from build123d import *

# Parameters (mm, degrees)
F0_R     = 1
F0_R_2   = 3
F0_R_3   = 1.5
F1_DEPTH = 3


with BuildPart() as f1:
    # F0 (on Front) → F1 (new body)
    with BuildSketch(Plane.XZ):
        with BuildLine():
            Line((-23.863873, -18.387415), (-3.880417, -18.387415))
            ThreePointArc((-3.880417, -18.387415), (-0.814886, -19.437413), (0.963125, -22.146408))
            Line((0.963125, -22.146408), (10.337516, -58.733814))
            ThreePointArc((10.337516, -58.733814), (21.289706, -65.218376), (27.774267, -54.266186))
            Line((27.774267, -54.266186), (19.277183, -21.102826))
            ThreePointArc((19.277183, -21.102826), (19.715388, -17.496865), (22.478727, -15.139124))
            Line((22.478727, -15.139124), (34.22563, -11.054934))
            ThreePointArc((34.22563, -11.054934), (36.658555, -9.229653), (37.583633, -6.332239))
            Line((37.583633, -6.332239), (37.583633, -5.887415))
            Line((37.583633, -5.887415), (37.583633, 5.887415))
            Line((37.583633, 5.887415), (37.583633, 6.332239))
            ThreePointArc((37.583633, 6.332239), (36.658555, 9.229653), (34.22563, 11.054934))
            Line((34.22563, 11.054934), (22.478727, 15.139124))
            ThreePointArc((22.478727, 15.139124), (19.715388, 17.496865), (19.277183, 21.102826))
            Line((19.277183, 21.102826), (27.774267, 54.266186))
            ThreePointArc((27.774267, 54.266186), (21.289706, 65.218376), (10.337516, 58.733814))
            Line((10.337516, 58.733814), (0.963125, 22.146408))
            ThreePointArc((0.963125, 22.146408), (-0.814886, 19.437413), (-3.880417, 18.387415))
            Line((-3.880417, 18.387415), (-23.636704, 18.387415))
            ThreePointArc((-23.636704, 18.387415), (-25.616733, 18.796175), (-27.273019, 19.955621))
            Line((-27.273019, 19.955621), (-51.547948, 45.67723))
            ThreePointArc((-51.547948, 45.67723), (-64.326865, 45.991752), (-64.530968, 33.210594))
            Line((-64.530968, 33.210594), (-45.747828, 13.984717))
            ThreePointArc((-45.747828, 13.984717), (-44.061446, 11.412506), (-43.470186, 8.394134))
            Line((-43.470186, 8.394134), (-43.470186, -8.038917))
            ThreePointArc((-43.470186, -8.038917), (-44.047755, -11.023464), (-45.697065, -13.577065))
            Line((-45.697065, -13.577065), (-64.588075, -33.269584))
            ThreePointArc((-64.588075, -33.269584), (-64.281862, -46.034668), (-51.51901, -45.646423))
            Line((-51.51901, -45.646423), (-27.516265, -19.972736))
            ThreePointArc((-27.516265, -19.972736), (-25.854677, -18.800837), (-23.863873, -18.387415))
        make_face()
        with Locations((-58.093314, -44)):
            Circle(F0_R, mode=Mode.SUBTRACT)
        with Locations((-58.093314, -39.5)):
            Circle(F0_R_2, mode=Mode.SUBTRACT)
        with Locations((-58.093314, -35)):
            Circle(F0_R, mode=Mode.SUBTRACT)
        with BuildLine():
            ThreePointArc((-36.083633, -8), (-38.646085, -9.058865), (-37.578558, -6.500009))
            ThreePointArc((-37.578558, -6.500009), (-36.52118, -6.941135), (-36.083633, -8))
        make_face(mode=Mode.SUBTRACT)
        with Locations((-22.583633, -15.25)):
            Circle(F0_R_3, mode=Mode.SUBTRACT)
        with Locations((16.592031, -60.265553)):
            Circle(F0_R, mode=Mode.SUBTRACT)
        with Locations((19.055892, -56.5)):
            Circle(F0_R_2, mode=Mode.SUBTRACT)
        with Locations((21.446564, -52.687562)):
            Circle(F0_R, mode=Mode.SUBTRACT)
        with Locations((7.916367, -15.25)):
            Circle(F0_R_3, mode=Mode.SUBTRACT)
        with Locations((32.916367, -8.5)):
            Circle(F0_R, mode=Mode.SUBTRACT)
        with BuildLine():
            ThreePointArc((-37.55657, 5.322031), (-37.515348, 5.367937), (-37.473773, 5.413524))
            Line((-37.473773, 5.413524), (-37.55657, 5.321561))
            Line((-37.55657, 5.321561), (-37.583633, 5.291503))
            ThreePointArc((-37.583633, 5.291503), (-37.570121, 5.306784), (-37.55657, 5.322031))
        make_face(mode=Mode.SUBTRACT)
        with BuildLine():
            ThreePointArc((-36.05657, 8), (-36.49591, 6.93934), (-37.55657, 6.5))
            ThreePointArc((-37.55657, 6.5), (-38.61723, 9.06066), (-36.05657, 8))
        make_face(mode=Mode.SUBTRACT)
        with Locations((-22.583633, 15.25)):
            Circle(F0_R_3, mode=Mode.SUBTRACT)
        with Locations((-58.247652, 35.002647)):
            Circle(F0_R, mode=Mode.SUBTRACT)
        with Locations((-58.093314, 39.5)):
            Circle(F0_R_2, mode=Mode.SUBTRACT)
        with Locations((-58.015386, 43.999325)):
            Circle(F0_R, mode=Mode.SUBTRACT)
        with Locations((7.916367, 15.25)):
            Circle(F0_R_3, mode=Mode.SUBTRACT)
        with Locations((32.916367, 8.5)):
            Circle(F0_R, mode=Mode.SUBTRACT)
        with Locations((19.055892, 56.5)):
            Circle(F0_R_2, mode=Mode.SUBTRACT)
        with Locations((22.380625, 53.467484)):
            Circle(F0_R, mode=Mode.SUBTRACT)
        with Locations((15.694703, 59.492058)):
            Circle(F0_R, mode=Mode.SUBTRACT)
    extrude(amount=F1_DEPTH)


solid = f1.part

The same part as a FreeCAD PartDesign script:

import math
import FreeCAD as App
import Part
import Sketcher

doc = App.newDocument("Part")
body = doc.addObject("PartDesign::Body", "Body")

sketch1 = body.newObject("Sketcher::SketchObject", "Sketch")
sketch1.AttachmentSupport = (doc.getObject("XZ_Plane"), [""])
sketch1.MapMode = "FlatFace"
sketch1.addGeometry(Part.LineSegment(App.Vector(-23.863873, -18.387415, 0), App.Vector(-3.880417, -18.387415, 0)), False)
sketch1.addGeometry(Part.ArcOfCircle(Part.Circle(App.Vector(-3.880418, -23.387416, 0), App.Vector(0, 0, 1), 5.000001), math.radians(14.371113), math.radians(89.999989)), False)
sketch1.addGeometry(Part.LineSegment(App.Vector(0.963125, -22.146408, 0), App.Vector(10.337516, -58.733814, 0)), False)
sketch1.addGeometry(Part.ArcOfCircle(Part.Circle(App.Vector(19.055892, -56.500001, 0), App.Vector(0, 0, 1), 9), math.radians(-165.628889), math.radians(14.371119)), False)
sketch1.addGeometry(Part.LineSegment(App.Vector(27.774267, -54.266186, 0), App.Vector(19.277183, -21.102826, 0)), False)
sketch1.addGeometry(Part.ArcOfCircle(Part.Circle(App.Vector(24.120725, -19.861818, 0), App.Vector(0, 0, 1), 5), math.radians(109.171669), math.radians(194.371112)), False)
sketch1.addGeometry(Part.LineSegment(App.Vector(22.478727, -15.139124, 0), App.Vector(34.22563, -11.054934, 0)), False)
sketch1.addGeometry(Part.ArcOfCircle(Part.Circle(App.Vector(32.583631, -6.332238, 0), App.Vector(0, 0, 1), 5.000002), math.radians(-70.828331), math.radians(-0.000012)), False)
sketch1.addGeometry(Part.LineSegment(App.Vector(37.583633, -6.332239, 0), App.Vector(37.583633, 6.332239, 0)), False)
sketch1.addGeometry(Part.ArcOfCircle(Part.Circle(App.Vector(32.583631, 6.332238, 0), App.Vector(0, 0, 1), 5.000002), math.radians(0.000012), math.radians(70.828331)), False)
sketch1.addGeometry(Part.LineSegment(App.Vector(34.22563, 11.054934, 0), App.Vector(22.478727, 15.139124, 0)), False)
sketch1.addGeometry(Part.ArcOfCircle(Part.Circle(App.Vector(24.120725, 19.861818, 0), App.Vector(0, 0, 1), 5), math.radians(165.628888), math.radians(250.828331)), False)
sketch1.addGeometry(Part.LineSegment(App.Vector(19.277183, 21.102826, 0), App.Vector(27.774267, 54.266186, 0)), False)
sketch1.addGeometry(Part.ArcOfCircle(Part.Circle(App.Vector(19.055892, 56.500001, 0), App.Vector(0, 0, 1), 9), math.radians(-14.371119), math.radians(165.628889)), False)
sketch1.addGeometry(Part.LineSegment(App.Vector(10.337516, 58.733814, 0), App.Vector(0.963125, 22.146408, 0)), False)
sketch1.addGeometry(Part.ArcOfCircle(Part.Circle(App.Vector(-3.880418, 23.387416, 0), App.Vector(0, 0, 1), 5.000001), math.radians(-89.999989), math.radians(-14.371113)), False)
sketch1.addGeometry(Part.LineSegment(App.Vector(-3.880417, 18.387415, 0), App.Vector(-23.636704, 18.387415, 0)), False)
sketch1.addGeometry(Part.ArcOfCircle(Part.Circle(App.Vector(-23.636704, 23.387414, 0), App.Vector(0, 0, 1), 4.999999), math.radians(-136.657444), math.radians(-89.999998)), False)
sketch1.addGeometry(Part.LineSegment(App.Vector(-27.273019, 19.955621, 0), App.Vector(-51.547948, 45.67723, 0)), False)
sketch1.addGeometry(Part.ArcOfCircle(Part.Circle(App.Vector(-58.093315, 39.499999, 0), App.Vector(0, 0, 1), 9), math.radians(43.342574), math.radians(224.332635)), False)
sketch1.addGeometry(Part.LineSegment(App.Vector(-64.530968, 33.210594, 0), App.Vector(-45.747828, 13.984717, 0)), False)
sketch1.addGeometry(Part.ArcOfCircle(Part.Circle(App.Vector(-51.470187, 8.394133, 0), App.Vector(0, 0, 1), 8.000001), math.radians(0.000004), math.radians(44.332636)), False)
sketch1.addGeometry(Part.LineSegment(App.Vector(-43.470186, 8.394134, 0), App.Vector(-43.470186, -8.038917, 0)), False)
sketch1.addGeometry(Part.ArcOfCircle(Part.Circle(App.Vector(-51.470188, -8.038917, 0), App.Vector(0, 0, 1), 8.000002), math.radians(-43.809936), math.radians(0.000001)), False)
sketch1.addGeometry(Part.LineSegment(App.Vector(-45.697065, -13.577065, 0), App.Vector(-64.588075, -33.269584, 0)), False)
sketch1.addGeometry(Part.ArcOfCircle(Part.Circle(App.Vector(-58.093315, -39.5, 0), App.Vector(0, 0, 1), 9), math.radians(136.190051), math.radians(316.92651)), False)
sketch1.addGeometry(Part.LineSegment(App.Vector(-51.51901, -45.646423, 0), App.Vector(-27.516265, -19.972736, 0)), False)
sketch1.addGeometry(Part.ArcOfCircle(Part.Circle(App.Vector(-23.863872, -23.387417, 0), App.Vector(0, 0, 1), 5.000002), math.radians(90.000009), math.radians(136.926506)), False)
sketch1.addGeometry(Part.Circle(App.Vector(-58.093314, -44, 0), App.Vector(0, 0, 1), 1), False)
sketch1.addGeometry(Part.Circle(App.Vector(-58.093314, -39.5, 0), App.Vector(0, 0, 1), 3), False)
sketch1.addGeometry(Part.Circle(App.Vector(-58.093314, -35, 0), App.Vector(0, 0, 1), 1), False)
sketch1.addGeometry(Part.ArcOfCircle(Part.Circle(App.Vector(-37.583631, -7.999999, 0), App.Vector(0, 0, 1), 1.499998), math.radians(-0.000056), math.radians(89.806221)), False)
sketch1.addGeometry(Part.ArcOfCircle(Part.Circle(App.Vector(-37.583633, -8, 0), App.Vector(0, 0, 1), 1.5), math.radians(89.806157), math.radians(360.000008)), False)
sketch1.addGeometry(Part.Circle(App.Vector(-22.583633, -15.25, 0), App.Vector(0, 0, 1), 1.5), False)
sketch1.addGeometry(Part.Circle(App.Vector(16.592031, -60.265553, 0), App.Vector(0, 0, 1), 1), False)
sketch1.addGeometry(Part.Circle(App.Vector(19.055892, -56.5, 0), App.Vector(0, 0, 1), 3), False)
sketch1.addGeometry(Part.Circle(App.Vector(21.446564, -52.687562, 0), App.Vector(0, 0, 1), 1), False)
sketch1.addGeometry(Part.Circle(App.Vector(7.916367, -15.25, 0), App.Vector(0, 0, 1), 1.5), False)
sketch1.addGeometry(Part.Circle(App.Vector(32.916367, -8.5, 0), App.Vector(0, 0, 1), 1), False)
sketch1.addGeometry(Part.ArcOfCircle(Part.Circle(App.Vector(-31.552095, -0.028182, 0), App.Vector(0, 0, 1), 8.042294), math.radians(138.297763), math.radians(138.588411)), False)
sketch1.addGeometry(Part.ArcOfCircle(Part.Circle(App.Vector(-31.583058, -0.000515, 0), App.Vector(0, 0, 1), 8.000772), math.radians(137.414501), math.radians(138.298176)), False)
sketch1.addGeometry(Part.LineSegment(App.Vector(-37.473773, 5.413524, 0), App.Vector(-37.55657, 5.321561, 0)), False)
sketch1.addGeometry(Part.LineSegment(App.Vector(-37.55657, 5.321561, 0), App.Vector(-37.583633, 5.291503, 0)), False)
sketch1.addGeometry(Part.ArcOfCircle(Part.Circle(App.Vector(-37.55657, 8, 0), App.Vector(0, 0, 1), 1.5), math.radians(0.000004), math.radians(269.999996)), False)
sketch1.addGeometry(Part.ArcOfCircle(Part.Circle(App.Vector(-37.556571, 8.000001, 0), App.Vector(0, 0, 1), 1.500001), math.radians(-89.999978), math.radians(-0.000022)), False)
sketch1.addGeometry(Part.Circle(App.Vector(-22.583633, 15.25, 0), App.Vector(0, 0, 1), 1.5), False)
sketch1.addGeometry(Part.Circle(App.Vector(-58.247652, 35.002647, 0), App.Vector(0, 0, 1), 1), False)
sketch1.addGeometry(Part.Circle(App.Vector(-58.093314, 39.5, 0), App.Vector(0, 0, 1), 3), False)
sketch1.addGeometry(Part.Circle(App.Vector(-58.015386, 43.999325, 0), App.Vector(0, 0, 1), 1), False)
sketch1.addGeometry(Part.Circle(App.Vector(7.916367, 15.25, 0), App.Vector(0, 0, 1), 1.5), False)
sketch1.addGeometry(Part.Circle(App.Vector(32.916367, 8.5, 0), App.Vector(0, 0, 1), 1), False)
sketch1.addGeometry(Part.Circle(App.Vector(15.694703, 59.492058, 0), App.Vector(0, 0, 1), 1), False)
sketch1.addGeometry(Part.Circle(App.Vector(19.055892, 56.5, 0), App.Vector(0, 0, 1), 3), False)
sketch1.addGeometry(Part.Circle(App.Vector(22.380625, 53.467484, 0), App.Vector(0, 0, 1), 1), False)
sketch1.addConstraint(Sketcher.Constraint("Coincident", 0, 2, 1, 2))
sketch1.addConstraint(Sketcher.Constraint("Coincident", 1, 1, 2, 1))
sketch1.addConstraint(Sketcher.Constraint("Coincident", 2, 2, 3, 1))
sketch1.addConstraint(Sketcher.Constraint("Coincident", 3, 2, 4, 1))
sketch1.addConstraint(Sketcher.Constraint("Coincident", 4, 2, 5, 2))
sketch1.addConstraint(Sketcher.Constraint("Coincident", 5, 1, 6, 1))
sketch1.addConstraint(Sketcher.Constraint("Coincident", 6, 2, 7, 1))
sketch1.addConstraint(Sketcher.Constraint("Coincident", 7, 2, 8, 1))
sketch1.addConstraint(Sketcher.Constraint("Coincident", 8, 2, 9, 1))
sketch1.addConstraint(Sketcher.Constraint("Coincident", 9, 2, 10, 1))
sketch1.addConstraint(Sketcher.Constraint("Coincident", 10, 2, 11, 2))
sketch1.addConstraint(Sketcher.Constraint("Coincident", 11, 1, 12, 1))
sketch1.addConstraint(Sketcher.Constraint("Coincident", 12, 2, 13, 1))
sketch1.addConstraint(Sketcher.Constraint("Coincident", 13, 2, 14, 1))
sketch1.addConstraint(Sketcher.Constraint("Coincident", 14, 2, 15, 2))
sketch1.addConstraint(Sketcher.Constraint("Coincident", 15, 1, 16, 1))
sketch1.addConstraint(Sketcher.Constraint("Coincident", 16, 2, 17, 2))
sketch1.addConstraint(Sketcher.Constraint("Coincident", 17, 1, 18, 1))
sketch1.addConstraint(Sketcher.Constraint("Coincident", 18, 2, 19, 1))
sketch1.addConstraint(Sketcher.Constraint("Coincident", 19, 2, 20, 1))
sketch1.addConstraint(Sketcher.Constraint("Coincident", 20, 2, 21, 2))
sketch1.addConstraint(Sketcher.Constraint("Coincident", 21, 1, 22, 1))
sketch1.addConstraint(Sketcher.Constraint("Coincident", 22, 2, 23, 2))
sketch1.addConstraint(Sketcher.Constraint("Coincident", 23, 1, 24, 1))
sketch1.addConstraint(Sketcher.Constraint("Coincident", 24, 2, 25, 1))
sketch1.addConstraint(Sketcher.Constraint("Coincident", 25, 2, 26, 1))
sketch1.addConstraint(Sketcher.Constraint("Coincident", 26, 2, 27, 2))
sketch1.addConstraint(Sketcher.Constraint("Coincident", 27, 1, 0, 1))
sketch1.addConstraint(Sketcher.Constraint("Coincident", 31, 1, 32, 2))
sketch1.addConstraint(Sketcher.Constraint("Coincident", 32, 1, 31, 2))
sketch1.addConstraint(Sketcher.Constraint("Coincident", 39, 1, 40, 2))
sketch1.addConstraint(Sketcher.Constraint("Coincident", 40, 1, 41, 1))
sketch1.addConstraint(Sketcher.Constraint("Coincident", 41, 2, 42, 1))
sketch1.addConstraint(Sketcher.Constraint("Coincident", 42, 2, 39, 2))
sketch1.addConstraint(Sketcher.Constraint("Coincident", 43, 1, 44, 2))
sketch1.addConstraint(Sketcher.Constraint("Coincident", 44, 1, 43, 2))
sketch1.addConstraint(Sketcher.Constraint("Horizontal", 0))
sketch1.addConstraint(Sketcher.Constraint("Vertical", 8))
sketch1.addConstraint(Sketcher.Constraint("Horizontal", 16))
sketch1.addConstraint(Sketcher.Constraint("Vertical", 22))
sketch1.addConstraint(Sketcher.Constraint("Coincident", 29, 3, 25, 3))
sketch1.addConstraint(Sketcher.Constraint("Coincident", 35, 3, 3, 3))
sketch1.addConstraint(Sketcher.Constraint("Coincident", 47, 3, 19, 3))
sketch1.addConstraint(Sketcher.Constraint("Coincident", 52, 3, 13, 3))
sketch1.addConstraint(Sketcher.Constraint("Diameter", 28, 2.0))
sketch1.addConstraint(Sketcher.Constraint("Diameter", 29, 6.0))
sketch1.addConstraint(Sketcher.Constraint("Diameter", 30, 2.0))
sketch1.addConstraint(Sketcher.Constraint("Diameter", 33, 3.0))
sketch1.addConstraint(Sketcher.Constraint("Diameter", 34, 2.0))
sketch1.addConstraint(Sketcher.Constraint("Diameter", 35, 6.0))
sketch1.addConstraint(Sketcher.Constraint("Diameter", 36, 2.0))
sketch1.addConstraint(Sketcher.Constraint("Diameter", 37, 3.0))
sketch1.addConstraint(Sketcher.Constraint("Diameter", 38, 2.0))
sketch1.addConstraint(Sketcher.Constraint("Diameter", 45, 3.0))
sketch1.addConstraint(Sketcher.Constraint("Diameter", 46, 2.0))
sketch1.addConstraint(Sketcher.Constraint("Diameter", 47, 6.0))
sketch1.addConstraint(Sketcher.Constraint("Diameter", 48, 2.0))
sketch1.addConstraint(Sketcher.Constraint("Diameter", 49, 3.0))
sketch1.addConstraint(Sketcher.Constraint("Diameter", 50, 2.0))
sketch1.addConstraint(Sketcher.Constraint("Diameter", 51, 2.0))
sketch1.addConstraint(Sketcher.Constraint("Diameter", 52, 6.0))
sketch1.addConstraint(Sketcher.Constraint("Diameter", 53, 2.0))
sketch1.addConstraint(Sketcher.Constraint("Radius", 1, 5.000001))
sketch1.addConstraint(Sketcher.Constraint("Radius", 3, 9.0))
sketch1.addConstraint(Sketcher.Constraint("Radius", 5, 5.0))
sketch1.addConstraint(Sketcher.Constraint("Radius", 7, 5.000002))
sketch1.addConstraint(Sketcher.Constraint("Radius", 9, 5.000002))
sketch1.addConstraint(Sketcher.Constraint("Radius", 11, 5.0))
sketch1.addConstraint(Sketcher.Constraint("Radius", 13, 9.0))
sketch1.addConstraint(Sketcher.Constraint("Radius", 15, 5.000001))
sketch1.addConstraint(Sketcher.Constraint("Radius", 17, 4.999999))
sketch1.addConstraint(Sketcher.Constraint("Radius", 19, 9.0))
sketch1.addConstraint(Sketcher.Constraint("Radius", 21, 8.000001))
sketch1.addConstraint(Sketcher.Constraint("Radius", 23, 8.000002))
sketch1.addConstraint(Sketcher.Constraint("Radius", 25, 9.0))
sketch1.addConstraint(Sketcher.Constraint("Radius", 27, 5.000002))
sketch1.addConstraint(Sketcher.Constraint("Radius", 31, 1.499998))
sketch1.addConstraint(Sketcher.Constraint("Radius", 32, 1.5))
sketch1.addConstraint(Sketcher.Constraint("Radius", 43, 1.5))
sketch1.addConstraint(Sketcher.Constraint("Radius", 44, 1.500001))
sketch1.addConstraint(Sketcher.Constraint("DistanceY", 28, 3, -1, 1, 44.0))
sketch1.addConstraint(Sketcher.Constraint("DistanceY", 30, 3, -1, 1, 35.0))
sketch1.addConstraint(Sketcher.Constraint("DistanceY", 31, 3, -1, 1, 7.999999))
sketch1.addConstraint(Sketcher.Constraint("DistanceY", -1, 1, 43, 3, 8.0))
sketch1.addConstraint(Sketcher.Constraint("DistanceY", 31, 1, -1, 1, 8.0))
sketch1.addConstraint(Sketcher.Constraint("DistanceY", -1, 1, 43, 1, 8.0))
sketch1.addConstraint(Sketcher.Constraint("DistanceY", 3, 3, -1, 1, 56.500001))
sketch1.addConstraint(Sketcher.Constraint("DistanceY", -1, 1, 13, 3, 56.500001))
sketch1.addConstraint(Sketcher.Constraint("DistanceY", -1, 1, 19, 3, 39.499999))
sketch1.addConstraint(Sketcher.Constraint("DistanceY", 25, 3, -1, 1, 39.5))
sketch1.addConstraint(Sketcher.Constraint("DistanceY", 38, 3, -1, 1, 8.5))
sketch1.addConstraint(Sketcher.Constraint("DistanceY", -1, 1, 50, 3, 8.5))
sketch1.addConstraint(Sketcher.Constraint("DistanceY", 33, 3, -1, 1, 15.25))
sketch1.addConstraint(Sketcher.Constraint("DistanceY", 37, 3, -1, 1, 15.25))
sketch1.addConstraint(Sketcher.Constraint("DistanceY", -1, 1, 45, 3, 15.25))
sketch1.addConstraint(Sketcher.Constraint("DistanceY", -1, 1, 49, 3, 15.25))
sketch1.addConstraint(Sketcher.Constraint("Radius", 40, 8.000772))
sketch1.addConstraint(Sketcher.Constraint("Radius", 39, 8.042294))
sketch1.addConstraint(Sketcher.Constraint("DistanceY", 8, 1, 8, 2, 12.664478))
sketch1.addConstraint(Sketcher.Constraint("DistanceY", 22, 2, 22, 1, 16.433051))
sketch1.addConstraint(Sketcher.Constraint("Distance", 24, 27.288561))
sketch1.addConstraint(Sketcher.Constraint("DistanceX", 0, 1, 0, 2, 19.983456))
sketch1.addConstraint(Sketcher.Constraint("DistanceX", 16, 2, 16, 1, 19.756287))
sketch1.addConstraint(Sketcher.Constraint("DistanceX", -1, 1, 3, 3, 19.055892))
sketch1.addConstraint(Sketcher.Constraint("DistanceY", 5, 3, -1, 1, 19.861818))
sketch1.addConstraint(Sketcher.Constraint("DistanceX", -1, 1, 7, 3, 32.583631))
sketch1.addConstraint(Sketcher.Constraint("DistanceY", -1, 1, 11, 3, 19.861818))
sketch1.addConstraint(Sketcher.Constraint("DistanceX", -1, 1, 13, 3, 19.055892))
sketch1.addConstraint(Sketcher.Constraint("DistanceX", 31, 3, -1, 1, 37.583631))
sketch1.addConstraint(Sketcher.Constraint("DistanceX", -1, 1, 34, 3, 16.592031))
sketch1.addConstraint(Sketcher.Constraint("DistanceY", 39, 3, -1, 1, 0.028182))
sketch1.addConstraint(Sketcher.Constraint("DistanceX", 43, 3, -1, 1, 37.55657))
sketch1.addConstraint(Sketcher.Constraint("DistanceY", 1, 1, -1, 1, 22.146408))
sketch1.addConstraint(Sketcher.Constraint("DistanceX", -1, 1, 6, 2, 34.22563))
sketch1.addConstraint(Sketcher.Constraint("DistanceY", 7, 2, -1, 1, 6.332239))
sketch1.addConstraint(Sketcher.Constraint("DistanceX", -1, 1, 9, 2, 34.22563))
sketch1.addConstraint(Sketcher.Constraint("DistanceY", -1, 1, 14, 2, 22.146408))
sketch1.addConstraint(Sketcher.Constraint("DistanceX", 17, 1, -1, 1, 27.273019))
sketch1.addConstraint(Sketcher.Constraint("DistanceY", -1, 1, 17, 1, 19.955621))
sketch1.addConstraint(Sketcher.Constraint("DistanceY", -1, 1, 18, 2, 45.67723))
sketch1.addConstraint(Sketcher.Constraint("DistanceX", 25, 2, -1, 1, 51.51901))
sketch1.addConstraint(Sketcher.Constraint("DistanceX", 32, 1, -1, 1, 37.578558))
sketch1.addConstraint(Sketcher.Constraint("DistanceX", 39, 1, -1, 1, 37.55657))
sketch1.addConstraint(Sketcher.Constraint("DistanceY", -1, 1, 39, 1, 5.322031))
sketch1.addConstraint(Sketcher.Constraint("DistanceX", 41, 2, -1, 1, 37.55657))
sketch1.addConstraint(Sketcher.Constraint("DistanceY", -1, 1, 41, 2, 5.321561))
sketch1.addConstraint(Sketcher.Constraint("DistanceX", 44, 1, -1, 1, 37.55657))
sketch1.addConstraint(Sketcher.Constraint("Distance", 2, 37.769266))
sketch1.addConstraint(Sketcher.Constraint("Distance", 4, 34.234615))
sketch1.addConstraint(Sketcher.Constraint("Distance", 6, 12.436653))
sketch1.addConstraint(Sketcher.Constraint("Distance", 10, 12.436653))
sketch1.addConstraint(Sketcher.Constraint("Distance", 12, 34.234615))
sketch1.addConstraint(Sketcher.Constraint("Distance", 14, 37.769266))
sketch1.addConstraint(Sketcher.Constraint("Distance", 18, 35.367688))
sketch1.addConstraint(Sketcher.Constraint("Distance", 20, 26.878257))
sketch1.addConstraint(Sketcher.Constraint("Distance", 26, 35.146408))
sketch1.addConstraint(Sketcher.Constraint("Distance", 41, 0.123744))
sketch1.addConstraint(Sketcher.Constraint("Distance", 42, 0.040446))
sketch1.addConstraint(Sketcher.Constraint("DistanceX", 1, 3, -1, 1, 3.880418))
sketch1.addConstraint(Sketcher.Constraint("DistanceY", 1, 3, -1, 1, 23.387416))
sketch1.addConstraint(Sketcher.Constraint("DistanceX", -1, 1, 5, 3, 24.120725))
sketch1.addConstraint(Sketcher.Constraint("DistanceY", 7, 3, -1, 1, 6.332238))
sketch1.addConstraint(Sketcher.Constraint("DistanceY", -1, 1, 9, 3, 6.332238))
sketch1.addConstraint(Sketcher.Constraint("DistanceX", -1, 1, 11, 3, 24.120725))
sketch1.addConstraint(Sketcher.Constraint("DistanceX", 15, 3, -1, 1, 3.880418))
sketch1.addConstraint(Sketcher.Constraint("DistanceY", -1, 1, 15, 3, 23.387416))
sketch1.addConstraint(Sketcher.Constraint("DistanceX", 21, 3, -1, 1, 51.470187))
sketch1.addConstraint(Sketcher.Constraint("DistanceY", -1, 1, 21, 3, 8.394133))
sketch1.addConstraint(Sketcher.Constraint("DistanceY", 23, 3, -1, 1, 8.038917))
sketch1.addConstraint(Sketcher.Constraint("DistanceX", 25, 3, -1, 1, 58.093315))
sketch1.addConstraint(Sketcher.Constraint("DistanceX", 27, 3, -1, 1, 23.863872))
sketch1.addConstraint(Sketcher.Constraint("DistanceX", 28, 3, -1, 1, 58.093314))
sketch1.addConstraint(Sketcher.Constraint("DistanceX", 30, 3, -1, 1, 58.093314))
sketch1.addConstraint(Sketcher.Constraint("DistanceX", 33, 3, -1, 1, 22.583633))
sketch1.addConstraint(Sketcher.Constraint("DistanceY", 34, 3, -1, 1, 60.265553))
sketch1.addConstraint(Sketcher.Constraint("DistanceX", -1, 1, 36, 3, 21.446564))
sketch1.addConstraint(Sketcher.Constraint("DistanceY", 36, 3, -1, 1, 52.687562))
sketch1.addConstraint(Sketcher.Constraint("DistanceX", -1, 1, 37, 3, 7.916367))
sketch1.addConstraint(Sketcher.Constraint("DistanceX", -1, 1, 38, 3, 32.916367))
sketch1.addConstraint(Sketcher.Constraint("DistanceX", 40, 3, -1, 1, 31.583058))
sketch1.addConstraint(Sketcher.Constraint("DistanceX", 45, 3, -1, 1, 22.583633))
sketch1.addConstraint(Sketcher.Constraint("DistanceX", 46, 3, -1, 1, 58.247652))
sketch1.addConstraint(Sketcher.Constraint("DistanceY", -1, 1, 46, 3, 35.002647))
sketch1.addConstraint(Sketcher.Constraint("DistanceX", 48, 3, -1, 1, 58.015386))
sketch1.addConstraint(Sketcher.Constraint("DistanceY", -1, 1, 48, 3, 43.999325))
sketch1.addConstraint(Sketcher.Constraint("DistanceX", -1, 1, 49, 3, 7.916367))
sketch1.addConstraint(Sketcher.Constraint("DistanceX", -1, 1, 50, 3, 32.916367))
sketch1.addConstraint(Sketcher.Constraint("DistanceX", -1, 1, 51, 3, 15.694703))
sketch1.addConstraint(Sketcher.Constraint("DistanceY", -1, 1, 51, 3, 59.492058))
sketch1.addConstraint(Sketcher.Constraint("DistanceX", -1, 1, 53, 3, 22.380625))
sketch1.addConstraint(Sketcher.Constraint("DistanceY", -1, 1, 53, 3, 53.467484))
sketch1.addConstraint(Sketcher.Constraint("DistanceX", 0, 2, -1, 1, 3.880417))
sketch1.addConstraint(Sketcher.Constraint("DistanceX", -1, 1, 3, 2, 27.774267))
sketch1.addConstraint(Sketcher.Constraint("DistanceX", -1, 1, 11, 1, 19.277183))
sketch1.addConstraint(Sketcher.Constraint("DistanceX", 15, 1, -1, 1, 3.880417))
sketch1.addConstraint(Sketcher.Constraint("DistanceX", 19, 2, -1, 1, 64.530968))
sketch1.addConstraint(Sketcher.Constraint("DistanceY", -1, 1, 21, 1, 8.394134))
sketch1.addConstraint(Sketcher.Constraint("DistanceX", 23, 1, -1, 1, 45.697065))
pad1 = body.newObject("PartDesign::Pad", "Pad")
pad1.Profile = sketch1
pad1.Length = 3

doc.recompute()
